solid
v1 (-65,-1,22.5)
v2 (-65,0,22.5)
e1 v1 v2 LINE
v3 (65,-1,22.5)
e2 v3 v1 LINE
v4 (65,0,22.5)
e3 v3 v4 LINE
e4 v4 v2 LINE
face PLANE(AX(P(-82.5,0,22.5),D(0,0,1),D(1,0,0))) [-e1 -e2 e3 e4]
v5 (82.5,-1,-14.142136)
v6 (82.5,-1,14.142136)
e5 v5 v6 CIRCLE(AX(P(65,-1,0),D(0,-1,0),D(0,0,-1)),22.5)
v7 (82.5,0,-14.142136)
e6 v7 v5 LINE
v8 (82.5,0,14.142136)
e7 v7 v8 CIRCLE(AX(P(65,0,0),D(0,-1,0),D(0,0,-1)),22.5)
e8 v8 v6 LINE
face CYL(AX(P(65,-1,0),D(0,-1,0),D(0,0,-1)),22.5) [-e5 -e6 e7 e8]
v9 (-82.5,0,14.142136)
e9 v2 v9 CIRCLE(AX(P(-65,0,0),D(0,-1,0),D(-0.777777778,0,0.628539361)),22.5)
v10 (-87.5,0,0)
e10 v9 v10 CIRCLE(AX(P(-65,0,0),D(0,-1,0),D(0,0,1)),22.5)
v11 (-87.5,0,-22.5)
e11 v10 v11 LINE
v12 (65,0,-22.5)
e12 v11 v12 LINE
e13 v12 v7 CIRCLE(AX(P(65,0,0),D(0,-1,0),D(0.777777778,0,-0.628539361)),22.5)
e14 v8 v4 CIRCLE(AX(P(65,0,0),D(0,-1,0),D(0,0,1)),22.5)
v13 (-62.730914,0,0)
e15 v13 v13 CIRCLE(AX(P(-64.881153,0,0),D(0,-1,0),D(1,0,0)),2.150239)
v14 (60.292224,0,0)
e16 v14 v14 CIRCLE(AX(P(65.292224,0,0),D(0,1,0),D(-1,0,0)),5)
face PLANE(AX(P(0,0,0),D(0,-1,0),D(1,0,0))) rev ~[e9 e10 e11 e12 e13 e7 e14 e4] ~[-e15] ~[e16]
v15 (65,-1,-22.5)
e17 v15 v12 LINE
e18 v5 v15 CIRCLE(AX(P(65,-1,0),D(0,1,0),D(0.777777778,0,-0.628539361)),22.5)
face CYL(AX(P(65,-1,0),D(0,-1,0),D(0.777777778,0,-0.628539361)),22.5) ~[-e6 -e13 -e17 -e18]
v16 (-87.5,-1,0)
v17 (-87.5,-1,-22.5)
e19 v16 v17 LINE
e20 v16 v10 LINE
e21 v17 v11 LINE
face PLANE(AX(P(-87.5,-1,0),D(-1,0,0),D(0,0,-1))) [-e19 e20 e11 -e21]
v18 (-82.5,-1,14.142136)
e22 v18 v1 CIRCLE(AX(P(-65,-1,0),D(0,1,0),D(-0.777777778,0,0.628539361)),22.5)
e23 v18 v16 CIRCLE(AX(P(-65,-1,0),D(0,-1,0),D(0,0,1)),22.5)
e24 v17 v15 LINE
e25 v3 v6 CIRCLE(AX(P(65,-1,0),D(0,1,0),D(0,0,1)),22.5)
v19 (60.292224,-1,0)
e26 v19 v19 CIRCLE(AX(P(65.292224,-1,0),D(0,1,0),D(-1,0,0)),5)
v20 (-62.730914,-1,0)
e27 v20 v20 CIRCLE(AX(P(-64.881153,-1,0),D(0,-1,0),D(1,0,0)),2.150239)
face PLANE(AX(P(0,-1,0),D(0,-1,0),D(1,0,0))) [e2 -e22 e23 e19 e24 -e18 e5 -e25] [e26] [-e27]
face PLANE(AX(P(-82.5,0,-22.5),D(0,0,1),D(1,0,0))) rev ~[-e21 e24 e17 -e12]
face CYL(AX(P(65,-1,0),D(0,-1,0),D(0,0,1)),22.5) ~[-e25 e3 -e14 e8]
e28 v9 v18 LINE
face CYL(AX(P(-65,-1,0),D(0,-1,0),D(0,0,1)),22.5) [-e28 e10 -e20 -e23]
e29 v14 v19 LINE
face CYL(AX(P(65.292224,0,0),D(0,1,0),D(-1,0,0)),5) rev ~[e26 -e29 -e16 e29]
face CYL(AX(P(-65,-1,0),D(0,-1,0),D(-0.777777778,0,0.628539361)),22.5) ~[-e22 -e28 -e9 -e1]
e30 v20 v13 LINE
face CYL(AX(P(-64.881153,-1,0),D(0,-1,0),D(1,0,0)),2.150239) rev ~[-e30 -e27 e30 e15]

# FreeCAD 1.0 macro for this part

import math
import FreeCAD as App
import Part
import Sketcher

doc = App.newDocument("Part")
body = doc.addObject("PartDesign::Body", "Body")

# Sketch on XZ plane
sketch1 = body.newObject("Sketcher::SketchObject", "Sketch")
sketch1.AttachmentSupport = (doc.getObject("XZ_Plane"), [""])
sketch1.MapMode = "FlatFace"
sketch1.addGeometry([
    Part.LineSegment(App.Vector(-82.5, 22.5, 0), App.Vector(-82.5, -22.5, 0)),  # 0
    Part.LineSegment(App.Vector(-82.5, -22.5, 0), App.Vector(82.5, -22.5, 0)),  # 1
    Part.LineSegment(App.Vector(82.5, -22.5, 0), App.Vector(82.5, 22.5, 0)),  # 2
    Part.LineSegment(App.Vector(82.5, 22.5, 0), App.Vector(-82.5, 22.5, 0)),  # 3
    Part.Circle(App.Vector(-65, 0, 0), App.Vector(0, 0, 1), 12.5),  # 4
    Part.Circle(App.Vector(65, 0, 0), App.Vector(0, 0, 1), 12.5),  # 5
], False)
sketch1.addConstraint([
    Sketcher.Constraint("Coincident", 0, 2, 1, 1),
    Sketcher.Constraint("Coincident", 1, 2, 2, 1),
    Sketcher.Constraint("Coincident", 2, 2, 3, 1),
    Sketcher.Constraint("Coincident", 3, 2, 0, 1),
    Sketcher.Constraint("Vertical", 0),
    Sketcher.Constraint("Horizontal", 1),
    Sketcher.Constraint("Vertical", 2),
    Sketcher.Constraint("Horizontal", 3),
    Sketcher.Constraint("Equal", 4, 5),
    Sketcher.Constraint("Symmetric", 4, 3, 5, 3, -1, 1),
    Sketcher.Constraint("Symmetric", 0, 2, 2, 2, -1, 1),
    Sketcher.Constraint("PointOnObject", 4, 3, -1),
    Sketcher.Constraint("Diameter", 4, 25.0),
    Sketcher.Constraint("DistanceX", 1, 1, 1, 2, 165.0),
    Sketcher.Constraint("DistanceY", 0, 2, 0, 1, 45.0),
    Sketcher.Constraint("DistanceX", 4, 3, -1, 1, 65.0),
])
pad1 = body.newObject("PartDesign::Pad", "Pad")
pad1.Profile = sketch1
pad1.Length = 1

# Sketch on XZ plane
sketch2 = body.newObject("Sketcher::SketchObject", "Sketch001")
sketch2.AttachmentSupport = (doc.getObject("XZ_Plane"), [""])
sketch2.MapMode = "FlatFace"
sketch2.AttachmentOffset = App.Placement(App.Vector(0, 0, 1), App.Rotation())
sketch2.addGeometry([
    Part.LineSegment(App.Vector(68.392515, -19.098815, 0), App.Vector(65, -22.5, 0)),  # 0
    Part.ArcOfCircle(Part.Circle(App.Vector(65, 0, 0), App.Vector(0, 0, 1), 22.5), math.radians(-90), math.radians(90)),  # 1
    Part.LineSegment(App.Vector(65, 22.5, 0), App.Vector(71.474224, 16.277056, 0)),  # 2
    Part.LineSegment(App.Vector(71.474224, 16.277056, 0), App.Vector(77.406272, 9.114554, 0)),  # 3
    Part.LineSegment(App.Vector(77.406272, 9.114554, 0), App.Vector(80.392651, 2.140756, 0)),  # 4
    Part.LineSegment(App.Vector(80.392651, 2.140756, 0), App.Vector(80.392651, -5.231712, 0)),  # 5
    Part.LineSegment(App.Vector(80.392651, -5.231712, 0), App.Vector(78.391492, -12.152054, 0)),  # 6
    Part.LineSegment(App.Vector(78.391492, -12.152054, 0), App.Vector(74.663207, -14.408175, 0)),  # 7
    Part.LineSegment(App.Vector(74.663207, -14.408175, 0), App.Vector(68.392515, -19.098815, 0)),  # 8
    Part.LineSegment(App.Vector(-65, 14.961795, 0), App.Vector(-65, 22.5, 0)),  # 9
    Part.ArcOfCircle(Part.Circle(App.Vector(-65, 0, 0), App.Vector(0, 0, 1), 22.5), math.radians(90), math.radians(270)),  # 10
    Part.LineSegment(App.Vector(-65, -22.5, 0), App.Vector(-67.476004, -15.697902, 0)),  # 11
    Part.LineSegment(App.Vector(-67.476004, -15.697902, 0), App.Vector(-72.844088, -12.914201, 0)),  # 12
    Part.LineSegment(App.Vector(-72.844088, -12.914201, 0), App.Vector(-76.585181, -7.80184, 0)),  # 13
    Part.LineSegment(App.Vector(-76.585181, -7.80184, 0), App.Vector(-79.563953, 0, 0)),  # 14
    Part.LineSegment(App.Vector(-79.563953, 0, 0), App.Vector(-79.563953, 6.465772, 0)),  # 15
    Part.LineSegment(App.Vector(-79.563953, 6.465772, 0), App.Vector(-75.449519, 11.760851, 0)),  # 16
    Part.LineSegment(App.Vector(-75.449519, 11.760851, 0), App.Vector(-65, 14.961795, 0)),  # 17
], False)
sketch2.addConstraint([
    Sketcher.Constraint("Coincident", 0, 2, 1, 1),
    Sketcher.Constraint("Coincident", 1, 2, 2, 1),
    Sketcher.Constraint("Coincident", 2, 2, 3, 1),
    Sketcher.Constraint("Coincident", 3, 2, 4, 1),
    Sketcher.Constraint("Coincident", 4, 2, 5, 1),
    Sketcher.Constraint("Coincident", 5, 2, 6, 1),
    Sketcher.Constraint("Coincident", 6, 2, 7, 1),
    Sketcher.Constraint("Coincident", 7, 2, 8, 1),
    Sketcher.Constraint("Coincident", 8, 2, 0, 1),
    Sketcher.Constraint("Coincident", 9, 2, 10, 1),
    Sketcher.Constraint("Coincident", 10, 2, 11, 1),
    Sketcher.Constraint("Coincident", 11, 2, 12, 1),
    Sketcher.Constraint("Coincident", 12, 2, 13, 1),
    Sketcher.Constraint("Coincident", 13, 2, 14, 1),
    Sketcher.Constraint("Coincident", 14, 2, 15, 1),
    Sketcher.Constraint("Coincident", 15, 2, 16, 1),
    Sketcher.Constraint("Coincident", 16, 2, 17, 1),
    Sketcher.Constraint("Coincident", 17, 2, 9, 1),
    Sketcher.Constraint("Vertical", 5),
    Sketcher.Constraint("Vertical", 9),
    Sketcher.Constraint("Vertical", 15),
    Sketcher.Constraint("Equal", 1, 10),
    Sketcher.Constraint("Symmetric", 1, 3, 10, 3, -1, 1),
    Sketcher.Constraint("Symmetric", 1, 2, 9, 2, -2),
    Sketcher.Constraint("PointOnObject", 14, 2, -1),
    Sketcher.Constraint("Vertical", 1, 3, 0, 2),
    Sketcher.Constraint("Vertical", 0, 2, 1, 2),
    Sketcher.Constraint("Vertical", 9, 2, 10, 2),
    Sketcher.Constraint("Radius", 1, 22.5),
    Sketcher.Constraint("DistanceX", -1, 1, 1, 3, 65.0),
    Sketcher.Constraint("Distance", 16, 6.705701),
    Sketcher.Constraint("DistanceY", 12, 2, -1, 1, 12.914201),
    Sketcher.Constraint("DistanceY", 4, 2, 2, 2, 14.1363),
    Sketcher.Constraint("DistanceY", 11, 2, 12, 2, 2.783701),
    Sketcher.Constraint("Distance", 2, 8.980012),
    Sketcher.Constraint("Distance", 17, 10.928792),
    Sketcher.Constraint("DistanceY", 5, 2, 5, 1, 7.372468),
    Sketcher.Constraint("DistanceY", 9, 1, 9, 2, 7.538205),
    Sketcher.Constraint("DistanceY", 15, 1, 15, 2, 6.465772),
    Sketcher.Constraint("DistanceX", -1, 1, 4, 2, 80.392651),
    Sketcher.Constraint("DistanceY", 5, 2, -1, 1, 5.231712),
    Sketcher.Constraint("DistanceX", 12, 2, -1, 1, 72.844088),
    Sketcher.Constraint("DistanceX", 13, 2, -1, 1, 76.585181),
    Sketcher.Constraint("DistanceY", 13, 2, -1, 1, 7.80184),
    Sketcher.Constraint("DistanceX", 16, 2, -1, 1, 75.449519),
    Sketcher.Constraint("DistanceX", 3, 2, 4, 2, 2.986379),
    Sketcher.Constraint("DistanceX", 6, 2, 5, 2, 2.001159),
    Sketcher.Constraint("DistanceY", 6, 2, 4, 2, 14.292811),
    Sketcher.Constraint("DistanceY", 6, 2, 3, 2, 21.266608),
    Sketcher.Constraint("DistanceY", 7, 2, 6, 2, 2.256121),
    Sketcher.Constraint("DistanceX", 8, 2, 7, 2, 6.270692),
    Sketcher.Constraint("DistanceY", 8, 2, 7, 2, 4.69064),
    Sketcher.Constraint("DistanceX", 14, 2, 11, 2, 12.087949),
    Sketcher.Constraint("Distance", 0, 4.803876),
])
pad2 = body.newObject("PartDesign::Pad", "Pad001")
pad2.Profile = sketch2
pad2.Length = 1
pad2.Reversed = True

# Sketch on XZ plane
sketch3 = body.newObject("Sketcher::SketchObject", "Sketch002")
sketch3.AttachmentSupport = (doc.getObject("XZ_Plane"), [""])
sketch3.MapMode = "FlatFace"
sketch3.AttachmentOffset = App.Placement(App.Vector(0, 0, 1), App.Rotation())
sketch3.addGeometry([
    Part.LineSegment(App.Vector(-82.5, 22.5, 0), App.Vector(-82.5, 14.142136, 0)),
    Part.ArcOfCircle(Part.Circle(App.Vector(-65, 0, 0), App.Vector(0, 0, 1), 22.5), math.radians(90), math.radians(141.057559)),
    Part.LineSegment(App.Vector(-65, 22.5, 0), App.Vector(-82.5, 22.5, 0)),
], False)
sketch3.addConstraint([
    Sketcher.Constraint("Coincident", 0, 2, 1, 2),
    Sketcher.Constraint("Tangent", 1, 1, 2, 1),
    Sketcher.Constraint("Coincident", 2, 2, 0, 1),
    Sketcher.Constraint("Vertical", 0),
    Sketcher.Constraint("Horizontal", 2),
    Sketcher.Constraint("PointOnObject", 1, 3, -1),
    Sketcher.Constraint("Radius", 1, 22.5),
    Sketcher.Constraint("DistanceX", 2, 2, 2, 1, 17.5),
    Sketcher.Constraint("DistanceX", 1, 3, -1, 1, 65.0),
])
pocket1 = body.newObject("PartDesign::Pocket", "Pocket")
pocket1.Profile = sketch3
pocket1.Length = 25

# Sketch on XZ plane
sketch4 = body.newObject("Sketcher::SketchObject", "Sketch003")
sketch4.AttachmentSupport = (doc.getObject("XZ_Plane"), [""])
sketch4.MapMode = "FlatFace"
sketch4.AttachmentOffset = App.Placement(App.Vector(0, 0, 1), App.Rotation())
sketch4.addGeometry([
    Part.ArcOfCircle(Part.Circle(App.Vector(65, 0, 0), App.Vector(0, 0, 1), 22.5), math.radians(-90), math.radians(-38.942441)),  # 0
    Part.LineSegment(App.Vector(65, -22.5, 0), App.Vector(82.5, -22.5, 0)),  # 1
    Part.LineSegment(App.Vector(82.5, -22.5, 0), App.Vector(82.5, -14.142136, 0)),  # 2
    Part.ArcOfCircle(Part.Circle(App.Vector(65, 0, 0), App.Vector(0, 0, 1), 22.5), math.radians(38.942441), math.radians(90)),  # 3
    Part.LineSegment(App.Vector(82.5, 14.142136, 0), App.Vector(82.5, 22.5, 0)),  # 4
    Part.LineSegment(App.Vector(82.5, 22.5, 0), App.Vector(65, 22.5, 0)),  # 5
    Part.LineSegment(App.Vector(-82.5, -22.5, 0), App.Vector(-65, -22.5, 0)),  # 6
    Part.ArcOfCircle(Part.Circle(App.Vector(-65, 0, 0), App.Vector(0, 0, 1), 22.5), math.radians(-141.057559), math.radians(-90)),  # 7
    Part.LineSegment(App.Vector(-82.5, -14.142136, 0), App.Vector(-82.5, -22.5, 0)),  # 8
], False)
sketch4.addConstraint([
    Sketcher.Constraint("Tangent", 0, 1, 1, 1),
    Sketcher.Constraint("Coincident", 1, 2, 2, 1),
    Sketcher.Constraint("Coincident", 2, 2, 0, 2),
    Sketcher.Constraint("Coincident", 3, 1, 4, 1),
    Sketcher.Constraint("Coincident", 4, 2, 5, 1),
    Sketcher.Constraint("Tangent", 5, 2, 3, 2),
    Sketcher.Constraint("Tangent", 6, 2, 7, 2),
    Sketcher.Constraint("Coincident", 7, 1, 8, 1),
    Sketcher.Constraint("Coincident", 8, 2, 6, 1),
    Sketcher.Constraint("Horizontal", 1),
    Sketcher.Constraint("Vertical", 2),
    Sketcher.Constraint("Vertical", 4),
    Sketcher.Constraint("Horizontal", 5),
    Sketcher.Constraint("Horizontal", 6),
    Sketcher.Constraint("Vertical", 8),
    Sketcher.Constraint("Coincident", 3, 3, 0, 3),
    Sketcher.Constraint("Equal", 0, 3),
    Sketcher.Constraint("Equal", 3, 7),
    Sketcher.Constraint("Symmetric", 0, 3, 7, 3, -1, 1),
    Sketcher.Constraint("Symmetric", 2, 2, 7, 1, -2),
    Sketcher.Constraint("Vertical", 2, 2, 3, 1),
    Sketcher.Constraint("Radius", 0, 22.5),
    Sketcher.Constraint("DistanceX", 1, 1, 1, 2, 17.5),
    Sketcher.Constraint("DistanceX", -1, 1, 0, 3, 65.0),
])
pocket2 = body.newObject("PartDesign::Pocket", "Pocket001")
pocket2.Profile = sketch4
pocket2.Length = 25

# Sketch on XZ plane
sketch5 = body.newObject("Sketcher::SketchObject", "Sketch004")
sketch5.AttachmentSupport = (doc.getObject("XZ_Plane"), [""])
sketch5.MapMode = "FlatFace"
sketch5.AttachmentOffset = App.Placement(App.Vector(0, 0, 1), App.Rotation())
sketch5.addGeometry([
    Part.LineSegment(App.Vector(-81.939511, 0, 0), App.Vector(-87.5, 0, 0)),  # 0
    Part.LineSegment(App.Vector(-87.5, 0, 0), App.Vector(-87.5, -22.5, 0)),  # 1
    Part.LineSegment(App.Vector(-87.5, -22.5, 0), App.Vector(-65, -22.5, 0)),  # 2
    Part.LineSegment(App.Vector(-65, -22.5, 0), App.Vector(-65, -18.589793, 0)),  # 3
    Part.LineSegment(App.Vector(-65, -18.589793, 0), App.Vector(-73.3229, -16.00012, 0)),  # 4
    Part.LineSegment(App.Vector(-73.3229, -16.00012, 0), App.Vector(-80.193438, -9.620848, 0)),  # 5
    Part.LineSegment(App.Vector(-80.193438, -9.620848, 0), App.Vector(-81.939511, 0, 0)),  # 6
], False)
sketch5.addConstraint([
    Sketcher.Constraint("Coincident", 0, 2, 1, 1),
    Sketcher.Constraint("Coincident", 1, 2, 2, 1),
    Sketcher.Constraint("Coincident", 2, 2, 3, 1),
    Sketcher.Constraint("Coincident", 3, 2, 4, 1),
    Sketcher.Constraint("Coincident", 4, 2, 5, 1),
    Sketcher.Constraint("Coincident", 5, 2, 6, 1),
    Sketcher.Constraint("Coincident", 6, 2, 0, 1),
    Sketcher.Constraint("Horizontal", 0),
    Sketcher.Constraint("Vertical", 1),
    Sketcher.Constraint("Horizontal", 2),
    Sketcher.Constraint("Vertical", 3),
    Sketcher.Constraint("PointOnObject", 0, 2, -1),
    Sketcher.Constraint("Equal", 2, 1),
    Sketcher.Constraint("DistanceX", 2, 1, 2, 2, 22.5),
    Sketcher.Constraint("DistanceX", 2, 2, -1, 1, 65.0),
    Sketcher.Constraint("DistanceX", 0, 2, 0, 1, 5.560489),
    Sketcher.Constraint("DistanceX", 4, 2, -1, 1, 73.3229),
    Sketcher.Constraint("Distance", 5, 9.375468),
    Sketcher.Constraint("Distance", 6, 9.778011),
    Sketcher.Constraint("DistanceY", 3, 1, 3, 2, 3.910207),
    Sketcher.Constraint("DistanceY", 4, 2, -1, 1, 16.00012),
])
pad3 = body.newObject("PartDesign::Pad", "Pad002")
pad3.Profile = sketch5
pad3.Length = 1
pad3.Reversed = True

# Sketch on XZ plane
sketch6 = body.newObject("Sketcher::SketchObject", "Sketch005")
sketch6.AttachmentSupport = (doc.getObject("XZ_Plane"), [""])
sketch6.MapMode = "FlatFace"
sketch6.AttachmentOffset = App.Placement(App.Vector(0, 0, 1), App.Rotation())
sketch6.addGeometry([
    Part.LineSegment(App.Vector(-78.863874, 16.225481, 0), App.Vector(-78.863874, -15.147127, 0)),  # 0
    Part.LineSegment(App.Vector(-78.863874, -15.147127, 0), App.Vector(-42.870499, -15.147127, 0)),  # 1
    Part.LineSegment(App.Vector(-42.870499, -15.147127, 0), App.Vector(-42.870499, 16.225481, 0)),  # 2
    Part.LineSegment(App.Vector(-42.870499, 16.225481, 0), App.Vector(-78.863874, 16.225481, 0)),  # 3
    Part.LineSegment(App.Vector(46.869755, 14.523092, 0), App.Vector(46.869755, -14.295933, 0)),  # 4
    Part.LineSegment(App.Vector(46.869755, -14.295933, 0), App.Vector(80.552749, -14.295933, 0)),  # 5
    Part.LineSegment(App.Vector(80.552749, -14.295933, 0), App.Vector(80.552749, 14.523092, 0)),  # 6
    Part.LineSegment(App.Vector(80.552749, 14.523092, 0), App.Vector(46.869755, 14.523092, 0)),  # 7
], False)
sketch6.addConstraint([
    Sketcher.Constraint("Coincident", 0, 2, 1, 1),
    Sketcher.Constraint("Coincident", 1, 2, 2, 1),
    Sketcher.Constraint("Coincident", 2, 2, 3, 1),
    Sketcher.Constraint("Coincident", 3, 2, 0, 1),
    Sketcher.Constraint("Coincident", 4, 2, 5, 1),
    Sketcher.Constraint("Coincident", 5, 2, 6, 1),
    Sketcher.Constraint("Coincident", 6, 2, 7, 1),
    Sketcher.Constraint("Coincident", 7, 2, 4, 1),
    Sketcher.Constraint("Vertical", 0),
    Sketcher.Constraint("Horizontal", 1),
    Sketcher.Constraint("Vertical", 2),
    Sketcher.Constraint("Horizontal", 3),
    Sketcher.Constraint("Vertical", 4),
    Sketcher.Constraint("Horizontal", 5),
    Sketcher.Constraint("Vertical", 6),
    Sketcher.Constraint("Horizontal", 7),
    Sketcher.Constraint("DistanceY", 0, 2, 0, 1, 31.372609),
    Sketcher.Constraint("DistanceX", 1, 2, -1, 1, 42.870499),
    Sketcher.Constraint("DistanceX", 1, 1, 1, 2, 35.993375),
    Sketcher.Constraint("DistanceX", 5, 1, 5, 2, 33.682995),
    Sketcher.Constraint("DistanceY", 4, 2, 4, 1, 28.819025),
    Sketcher.Constraint("DistanceY", -1, 1, 2, 2, 16.225481),
    Sketcher.Constraint("DistanceX", -1, 1, 5, 2, 80.552749),
    Sketcher.Constraint("DistanceY", -1, 1, 6, 2, 14.523092),
])
pad4 = body.newObject("PartDesign::Pad", "Pad003")
pad4.Profile = sketch6
pad4.Length = 1
pad4.Reversed = True

# Sketch on XZ plane
sketch7 = body.newObject("Sketcher::SketchObject", "Sketch006")
sketch7.AttachmentSupport = (doc.getObject("XZ_Plane"), [""])
sketch7.MapMode = "FlatFace"
sketch7.AttachmentOffset = App.Placement(App.Vector(0, 0, 1), App.Rotation())
sketch7.addGeometry(Part.Circle(App.Vector(65.292224, 0, 0), App.Vector(0, 0, 1), 4.124987), False)
sketch7.addConstraint([
    Sketcher.Constraint("PointOnObject", 0, 3, -1),
    Sketcher.Constraint("Diameter", 0, 8.249974),
    Sketcher.Constraint("DistanceX", -1, 1, 0, 3, 65.292224),
])
pocket3 = body.newObject("PartDesign::Pocket", "Pocket002")
pocket3.Profile = sketch7
pocket3.Length = 25

# Sketch on XZ plane
sketch8 = body.newObject("Sketcher::SketchObject", "Sketch007")
sketch8.AttachmentSupport = (doc.getObject("XZ_Plane"), [""])
sketch8.MapMode = "FlatFace"
sketch8.AttachmentOffset = App.Placement(App.Vector(0, 0, 1), App.Rotation())
sketch8.addGeometry(Part.Circle(App.Vector(-64.881153, 0, 0), App.Vector(0, 0, 1), 2.150239), False)
sketch8.addConstraint([
    Sketcher.Constraint("PointOnObject", 0, 3, -1),
    Sketcher.Constraint("Diameter", 0, 4.300479),
    Sketcher.Constraint("DistanceX", 0, 3, -1, 1, 64.881153),
])
pocket4 = body.newObject("PartDesign::Pocket", "Pocket003")
pocket4.Profile = sketch8
pocket4.Length = 25

# Sketch on XZ plane
sketch9 = body.newObject("Sketcher::SketchObject", "Sketch008")
sketch9.AttachmentSupport = (doc.getObject("XZ_Plane"), [""])
sketch9.MapMode = "FlatFace"
sketch9.addGeometry(Part.Circle(App.Vector(65.292224, 0, 0), App.Vector(0, 0, 1), 5), False)
sketch9.addConstraint([
    Sketcher.Constraint("PointOnObject", 0, 3, -1),
    Sketcher.Constraint("Diameter", 0, 10.0),
    Sketcher.Constraint("DistanceX", -1, 1, 0, 3, 65.292224),
])
pocket5 = body.newObject("PartDesign::Pocket", "Pocket004")
pocket5.Profile = sketch9
pocket5.Length = 25
pocket5.Reversed = True

doc.recompute()
